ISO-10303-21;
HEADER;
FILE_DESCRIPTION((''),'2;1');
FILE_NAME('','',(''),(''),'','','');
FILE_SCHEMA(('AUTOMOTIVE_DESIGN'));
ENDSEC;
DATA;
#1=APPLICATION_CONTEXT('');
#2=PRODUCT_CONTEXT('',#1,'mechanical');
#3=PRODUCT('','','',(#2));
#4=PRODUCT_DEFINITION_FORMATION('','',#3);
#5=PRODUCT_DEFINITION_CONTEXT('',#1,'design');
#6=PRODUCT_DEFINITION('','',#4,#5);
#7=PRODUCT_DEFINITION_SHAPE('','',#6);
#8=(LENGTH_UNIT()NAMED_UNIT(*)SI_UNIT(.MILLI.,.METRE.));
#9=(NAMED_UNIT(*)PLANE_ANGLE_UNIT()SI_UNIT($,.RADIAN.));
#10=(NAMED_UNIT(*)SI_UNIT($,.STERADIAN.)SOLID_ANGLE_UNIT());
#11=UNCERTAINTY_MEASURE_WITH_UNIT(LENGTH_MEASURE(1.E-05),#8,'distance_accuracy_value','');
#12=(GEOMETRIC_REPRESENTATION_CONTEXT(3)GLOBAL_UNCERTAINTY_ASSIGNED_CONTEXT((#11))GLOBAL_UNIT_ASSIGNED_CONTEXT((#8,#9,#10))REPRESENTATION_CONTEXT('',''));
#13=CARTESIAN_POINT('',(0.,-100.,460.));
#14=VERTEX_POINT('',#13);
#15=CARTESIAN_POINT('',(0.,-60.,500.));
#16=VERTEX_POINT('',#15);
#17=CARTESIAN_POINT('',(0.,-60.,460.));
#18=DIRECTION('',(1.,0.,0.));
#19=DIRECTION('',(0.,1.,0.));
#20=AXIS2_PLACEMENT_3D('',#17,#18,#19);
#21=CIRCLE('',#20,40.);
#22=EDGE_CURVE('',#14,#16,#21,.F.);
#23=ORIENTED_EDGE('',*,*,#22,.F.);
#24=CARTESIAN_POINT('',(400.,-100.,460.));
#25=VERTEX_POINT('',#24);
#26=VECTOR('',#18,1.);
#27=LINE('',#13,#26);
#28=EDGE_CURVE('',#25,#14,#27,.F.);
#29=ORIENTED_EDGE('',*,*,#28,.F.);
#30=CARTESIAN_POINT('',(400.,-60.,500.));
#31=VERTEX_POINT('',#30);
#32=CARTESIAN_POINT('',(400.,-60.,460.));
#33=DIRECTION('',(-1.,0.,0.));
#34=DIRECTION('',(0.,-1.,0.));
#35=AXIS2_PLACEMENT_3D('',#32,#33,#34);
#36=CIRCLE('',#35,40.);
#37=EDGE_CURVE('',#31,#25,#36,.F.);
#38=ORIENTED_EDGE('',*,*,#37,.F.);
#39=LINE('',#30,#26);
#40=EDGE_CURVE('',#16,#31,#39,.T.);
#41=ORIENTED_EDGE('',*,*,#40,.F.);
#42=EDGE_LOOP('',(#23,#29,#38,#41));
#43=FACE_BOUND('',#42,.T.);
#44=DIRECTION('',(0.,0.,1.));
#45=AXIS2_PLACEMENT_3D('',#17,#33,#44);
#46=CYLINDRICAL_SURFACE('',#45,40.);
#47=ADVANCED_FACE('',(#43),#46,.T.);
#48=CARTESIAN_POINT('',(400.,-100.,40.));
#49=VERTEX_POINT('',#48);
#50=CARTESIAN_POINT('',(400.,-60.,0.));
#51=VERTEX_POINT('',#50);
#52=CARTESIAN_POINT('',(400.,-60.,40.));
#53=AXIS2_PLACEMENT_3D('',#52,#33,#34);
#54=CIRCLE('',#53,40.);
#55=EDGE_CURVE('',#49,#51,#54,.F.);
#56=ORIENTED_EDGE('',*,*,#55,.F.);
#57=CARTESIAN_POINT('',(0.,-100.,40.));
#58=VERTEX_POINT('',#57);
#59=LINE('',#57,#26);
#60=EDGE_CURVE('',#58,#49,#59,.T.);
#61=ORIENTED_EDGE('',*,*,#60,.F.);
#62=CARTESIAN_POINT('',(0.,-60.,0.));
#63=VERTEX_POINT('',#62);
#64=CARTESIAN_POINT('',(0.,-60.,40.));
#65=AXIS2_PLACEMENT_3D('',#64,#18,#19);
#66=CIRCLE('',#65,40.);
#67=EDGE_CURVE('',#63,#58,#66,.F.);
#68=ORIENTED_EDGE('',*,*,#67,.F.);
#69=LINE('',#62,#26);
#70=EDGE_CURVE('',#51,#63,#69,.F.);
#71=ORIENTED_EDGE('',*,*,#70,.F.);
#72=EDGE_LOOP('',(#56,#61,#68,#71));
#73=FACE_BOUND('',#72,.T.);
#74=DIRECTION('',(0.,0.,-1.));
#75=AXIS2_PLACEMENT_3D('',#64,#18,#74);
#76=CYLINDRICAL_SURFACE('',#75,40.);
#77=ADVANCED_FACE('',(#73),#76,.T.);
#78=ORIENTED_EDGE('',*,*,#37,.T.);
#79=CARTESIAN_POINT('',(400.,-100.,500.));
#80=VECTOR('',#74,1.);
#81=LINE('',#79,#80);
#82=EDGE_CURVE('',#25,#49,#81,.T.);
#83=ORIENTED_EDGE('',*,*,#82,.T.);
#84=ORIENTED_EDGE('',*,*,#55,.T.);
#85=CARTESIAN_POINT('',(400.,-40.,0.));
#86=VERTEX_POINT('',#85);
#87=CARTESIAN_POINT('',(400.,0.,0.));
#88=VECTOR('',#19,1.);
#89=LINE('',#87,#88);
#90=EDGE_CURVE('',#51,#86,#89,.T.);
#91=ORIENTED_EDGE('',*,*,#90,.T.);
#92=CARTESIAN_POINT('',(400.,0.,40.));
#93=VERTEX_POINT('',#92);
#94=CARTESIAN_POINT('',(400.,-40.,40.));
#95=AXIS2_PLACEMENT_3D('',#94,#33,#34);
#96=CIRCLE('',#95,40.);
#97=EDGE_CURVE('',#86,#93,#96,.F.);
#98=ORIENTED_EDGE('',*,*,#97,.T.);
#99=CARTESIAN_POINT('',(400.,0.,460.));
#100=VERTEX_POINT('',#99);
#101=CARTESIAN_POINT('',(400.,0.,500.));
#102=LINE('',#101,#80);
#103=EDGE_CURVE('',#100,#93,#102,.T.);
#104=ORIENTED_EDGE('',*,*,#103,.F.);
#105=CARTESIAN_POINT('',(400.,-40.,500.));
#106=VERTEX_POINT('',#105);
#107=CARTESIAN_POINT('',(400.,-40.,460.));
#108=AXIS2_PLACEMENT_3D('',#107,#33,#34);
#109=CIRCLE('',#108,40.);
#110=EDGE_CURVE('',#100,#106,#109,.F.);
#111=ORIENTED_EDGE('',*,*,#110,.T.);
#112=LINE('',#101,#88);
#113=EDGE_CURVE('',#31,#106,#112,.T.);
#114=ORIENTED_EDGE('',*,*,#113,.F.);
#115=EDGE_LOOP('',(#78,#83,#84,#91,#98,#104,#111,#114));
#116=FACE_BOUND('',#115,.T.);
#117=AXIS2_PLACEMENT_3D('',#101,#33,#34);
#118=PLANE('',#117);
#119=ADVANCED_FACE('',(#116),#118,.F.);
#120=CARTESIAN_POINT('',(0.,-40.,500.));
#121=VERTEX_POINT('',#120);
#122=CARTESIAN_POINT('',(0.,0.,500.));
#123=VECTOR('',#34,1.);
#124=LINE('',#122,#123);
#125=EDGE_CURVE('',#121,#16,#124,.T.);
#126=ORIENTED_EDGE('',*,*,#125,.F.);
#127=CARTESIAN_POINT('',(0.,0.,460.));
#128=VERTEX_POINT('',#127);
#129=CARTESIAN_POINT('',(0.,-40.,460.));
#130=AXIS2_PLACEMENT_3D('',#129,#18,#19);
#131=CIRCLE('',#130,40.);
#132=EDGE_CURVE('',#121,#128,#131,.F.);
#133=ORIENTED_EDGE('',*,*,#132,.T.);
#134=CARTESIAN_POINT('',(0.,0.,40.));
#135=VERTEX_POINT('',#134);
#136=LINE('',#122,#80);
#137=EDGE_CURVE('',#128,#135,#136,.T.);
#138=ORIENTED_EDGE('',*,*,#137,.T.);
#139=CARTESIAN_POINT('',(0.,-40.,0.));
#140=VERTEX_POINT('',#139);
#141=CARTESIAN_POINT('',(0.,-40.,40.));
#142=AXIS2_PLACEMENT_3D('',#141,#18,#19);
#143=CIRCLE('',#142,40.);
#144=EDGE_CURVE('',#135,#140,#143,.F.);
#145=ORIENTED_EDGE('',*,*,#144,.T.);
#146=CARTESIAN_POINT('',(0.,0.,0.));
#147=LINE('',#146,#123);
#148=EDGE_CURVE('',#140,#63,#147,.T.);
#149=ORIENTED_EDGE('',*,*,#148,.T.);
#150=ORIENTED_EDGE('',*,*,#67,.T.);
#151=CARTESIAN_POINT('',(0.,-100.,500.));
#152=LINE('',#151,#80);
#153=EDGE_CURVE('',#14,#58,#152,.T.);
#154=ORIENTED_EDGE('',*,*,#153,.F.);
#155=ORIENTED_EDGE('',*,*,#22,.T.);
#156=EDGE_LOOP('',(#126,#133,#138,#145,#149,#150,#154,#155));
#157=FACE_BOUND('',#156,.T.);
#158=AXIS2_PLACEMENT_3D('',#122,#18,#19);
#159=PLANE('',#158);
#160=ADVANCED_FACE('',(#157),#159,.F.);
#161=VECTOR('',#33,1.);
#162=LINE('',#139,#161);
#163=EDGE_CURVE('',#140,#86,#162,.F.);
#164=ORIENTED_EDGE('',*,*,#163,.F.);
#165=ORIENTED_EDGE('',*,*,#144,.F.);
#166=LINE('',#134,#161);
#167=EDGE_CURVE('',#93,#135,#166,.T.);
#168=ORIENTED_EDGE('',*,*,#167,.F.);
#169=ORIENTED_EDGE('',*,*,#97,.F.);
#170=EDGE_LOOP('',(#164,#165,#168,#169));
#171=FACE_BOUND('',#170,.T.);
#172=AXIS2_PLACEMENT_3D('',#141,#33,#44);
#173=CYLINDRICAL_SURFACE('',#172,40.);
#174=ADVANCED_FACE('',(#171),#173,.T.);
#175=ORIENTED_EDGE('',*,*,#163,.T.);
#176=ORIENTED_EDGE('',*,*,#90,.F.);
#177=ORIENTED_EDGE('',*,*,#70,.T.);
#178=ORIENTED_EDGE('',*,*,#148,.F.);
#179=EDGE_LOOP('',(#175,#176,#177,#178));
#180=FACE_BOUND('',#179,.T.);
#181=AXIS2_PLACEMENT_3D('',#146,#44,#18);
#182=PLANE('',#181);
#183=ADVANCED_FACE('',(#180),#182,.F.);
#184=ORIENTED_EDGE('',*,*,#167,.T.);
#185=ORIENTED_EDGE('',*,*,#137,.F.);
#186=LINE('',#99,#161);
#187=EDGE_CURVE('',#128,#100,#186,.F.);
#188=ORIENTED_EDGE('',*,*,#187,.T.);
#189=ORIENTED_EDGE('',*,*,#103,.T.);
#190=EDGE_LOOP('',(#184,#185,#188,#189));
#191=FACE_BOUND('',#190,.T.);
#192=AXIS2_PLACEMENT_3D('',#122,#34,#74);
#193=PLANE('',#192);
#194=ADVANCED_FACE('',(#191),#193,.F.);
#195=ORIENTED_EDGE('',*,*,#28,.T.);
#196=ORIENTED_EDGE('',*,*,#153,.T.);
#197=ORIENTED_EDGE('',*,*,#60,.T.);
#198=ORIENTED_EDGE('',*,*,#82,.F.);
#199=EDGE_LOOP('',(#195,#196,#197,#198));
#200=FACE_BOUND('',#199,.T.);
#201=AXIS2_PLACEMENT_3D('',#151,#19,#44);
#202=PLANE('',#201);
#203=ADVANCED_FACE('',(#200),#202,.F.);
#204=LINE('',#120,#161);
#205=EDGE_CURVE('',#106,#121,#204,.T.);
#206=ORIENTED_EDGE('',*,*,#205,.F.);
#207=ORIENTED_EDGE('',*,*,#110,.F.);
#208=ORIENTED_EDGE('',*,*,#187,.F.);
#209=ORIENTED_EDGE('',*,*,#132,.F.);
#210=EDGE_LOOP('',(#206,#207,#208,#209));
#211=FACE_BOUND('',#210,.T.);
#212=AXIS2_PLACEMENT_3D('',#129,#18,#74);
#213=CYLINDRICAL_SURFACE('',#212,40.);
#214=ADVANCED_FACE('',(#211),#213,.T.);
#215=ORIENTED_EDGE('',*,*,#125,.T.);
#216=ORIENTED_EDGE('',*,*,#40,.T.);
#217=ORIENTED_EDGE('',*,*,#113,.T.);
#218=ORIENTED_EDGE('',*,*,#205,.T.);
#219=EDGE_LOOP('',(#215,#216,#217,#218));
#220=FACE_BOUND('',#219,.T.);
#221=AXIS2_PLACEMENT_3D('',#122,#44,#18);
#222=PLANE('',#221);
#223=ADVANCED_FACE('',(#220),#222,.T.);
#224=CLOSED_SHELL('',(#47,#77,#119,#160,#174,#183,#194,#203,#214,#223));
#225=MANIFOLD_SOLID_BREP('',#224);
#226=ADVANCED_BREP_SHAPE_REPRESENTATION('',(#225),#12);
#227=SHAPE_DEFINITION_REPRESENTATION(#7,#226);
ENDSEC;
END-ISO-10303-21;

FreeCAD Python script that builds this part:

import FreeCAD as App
import Part
import Sketcher


def edges_at(feature, points):
    """Names of the edges that pass closest to the given points."""
    edges = feature.Shape.Edges
    near = lambda p: min(range(len(edges)), key=lambda i: edges[i].distToShape(Part.Vertex(*p))[0])
    return sorted({f"Edge{near(p) + 1}" for p in points})


def add_polygon(sketch, points):
    """Adds a closed chain of lines whose ends are joined by coincident constraints."""
    first, n = sketch.GeometryCount, len(points)
    for a, b in zip(points, points[1:] + points[:1]):
        sketch.addGeometry(Part.LineSegment(App.Vector(*a, 0), App.Vector(*b, 0)), False)
    for i in range(n):
        sketch.addConstraint(Sketcher.Constraint("Coincident", first + i, 2, first + (i + 1) % n, 1))

doc = App.newDocument("Part")
params = doc.addObject("Spreadsheet::Sheet", "Params")
for row, (alias, value) in enumerate([
    ("sketch1_width", "400 mm"),
    ("sketch1_height", "100 mm"),
    ("pad1_length", "500 mm"),
    ("fillet_radius", "40 mm"),
], start=1):
    params.set(f"A{row}", alias)
    params.set(f"B{row}", "=" + value)
    params.setAlias(f"B{row}", alias)

body = doc.addObject("PartDesign::Body", "Body")

# Sketch on XY plane
sketch1 = body.newObject("Sketcher::SketchObject", "Sketch")
sketch1.AttachmentSupport = (doc.getObject("XY_Plane"), [""])
sketch1.MapMode = "FlatFace"
add_polygon(sketch1, [(0, 0), (0, -100), (400, -100), (400, 0)])  # lines 0-3
sketch1.addConstraint(Sketcher.Constraint("Vertical", 0))
sketch1.addConstraint(Sketcher.Constraint("Horizontal", 1))
sketch1.addConstraint(Sketcher.Constraint("Vertical", 2))
sketch1.addConstraint(Sketcher.Constraint("Horizontal", 3))
sketch1.addConstraint(Sketcher.Constraint("Coincident", 3, 2, -1, 1))
sketch1.addConstraint(Sketcher.Constraint("DistanceX", 1, 1, 1, 2, 400.0))
sketch1.addConstraint(Sketcher.Constraint("DistanceY", 0, 2, 0, 1, 100.0))
sketch1.setExpression("Constraints[9]", "Params.sketch1_width")
sketch1.setExpression("Constraints[10]", "Params.sketch1_height")
pad1 = body.newObject("PartDesign::Pad", "Pad")
pad1.Profile = sketch1
pad1.setExpression("Length", "Params.pad1_length")
doc.recompute()

fillet = body.newObject("PartDesign::Fillet", "Fillet")
fillet.Base = (pad1, edges_at(pad1, [
    (200, 0, 500),
    (200, 0, 0),
    (200, -100, 0),
    (200, -100, 500),
]))
fillet.setExpression("Radius", "Params.fillet_radius")

doc.recompute()
